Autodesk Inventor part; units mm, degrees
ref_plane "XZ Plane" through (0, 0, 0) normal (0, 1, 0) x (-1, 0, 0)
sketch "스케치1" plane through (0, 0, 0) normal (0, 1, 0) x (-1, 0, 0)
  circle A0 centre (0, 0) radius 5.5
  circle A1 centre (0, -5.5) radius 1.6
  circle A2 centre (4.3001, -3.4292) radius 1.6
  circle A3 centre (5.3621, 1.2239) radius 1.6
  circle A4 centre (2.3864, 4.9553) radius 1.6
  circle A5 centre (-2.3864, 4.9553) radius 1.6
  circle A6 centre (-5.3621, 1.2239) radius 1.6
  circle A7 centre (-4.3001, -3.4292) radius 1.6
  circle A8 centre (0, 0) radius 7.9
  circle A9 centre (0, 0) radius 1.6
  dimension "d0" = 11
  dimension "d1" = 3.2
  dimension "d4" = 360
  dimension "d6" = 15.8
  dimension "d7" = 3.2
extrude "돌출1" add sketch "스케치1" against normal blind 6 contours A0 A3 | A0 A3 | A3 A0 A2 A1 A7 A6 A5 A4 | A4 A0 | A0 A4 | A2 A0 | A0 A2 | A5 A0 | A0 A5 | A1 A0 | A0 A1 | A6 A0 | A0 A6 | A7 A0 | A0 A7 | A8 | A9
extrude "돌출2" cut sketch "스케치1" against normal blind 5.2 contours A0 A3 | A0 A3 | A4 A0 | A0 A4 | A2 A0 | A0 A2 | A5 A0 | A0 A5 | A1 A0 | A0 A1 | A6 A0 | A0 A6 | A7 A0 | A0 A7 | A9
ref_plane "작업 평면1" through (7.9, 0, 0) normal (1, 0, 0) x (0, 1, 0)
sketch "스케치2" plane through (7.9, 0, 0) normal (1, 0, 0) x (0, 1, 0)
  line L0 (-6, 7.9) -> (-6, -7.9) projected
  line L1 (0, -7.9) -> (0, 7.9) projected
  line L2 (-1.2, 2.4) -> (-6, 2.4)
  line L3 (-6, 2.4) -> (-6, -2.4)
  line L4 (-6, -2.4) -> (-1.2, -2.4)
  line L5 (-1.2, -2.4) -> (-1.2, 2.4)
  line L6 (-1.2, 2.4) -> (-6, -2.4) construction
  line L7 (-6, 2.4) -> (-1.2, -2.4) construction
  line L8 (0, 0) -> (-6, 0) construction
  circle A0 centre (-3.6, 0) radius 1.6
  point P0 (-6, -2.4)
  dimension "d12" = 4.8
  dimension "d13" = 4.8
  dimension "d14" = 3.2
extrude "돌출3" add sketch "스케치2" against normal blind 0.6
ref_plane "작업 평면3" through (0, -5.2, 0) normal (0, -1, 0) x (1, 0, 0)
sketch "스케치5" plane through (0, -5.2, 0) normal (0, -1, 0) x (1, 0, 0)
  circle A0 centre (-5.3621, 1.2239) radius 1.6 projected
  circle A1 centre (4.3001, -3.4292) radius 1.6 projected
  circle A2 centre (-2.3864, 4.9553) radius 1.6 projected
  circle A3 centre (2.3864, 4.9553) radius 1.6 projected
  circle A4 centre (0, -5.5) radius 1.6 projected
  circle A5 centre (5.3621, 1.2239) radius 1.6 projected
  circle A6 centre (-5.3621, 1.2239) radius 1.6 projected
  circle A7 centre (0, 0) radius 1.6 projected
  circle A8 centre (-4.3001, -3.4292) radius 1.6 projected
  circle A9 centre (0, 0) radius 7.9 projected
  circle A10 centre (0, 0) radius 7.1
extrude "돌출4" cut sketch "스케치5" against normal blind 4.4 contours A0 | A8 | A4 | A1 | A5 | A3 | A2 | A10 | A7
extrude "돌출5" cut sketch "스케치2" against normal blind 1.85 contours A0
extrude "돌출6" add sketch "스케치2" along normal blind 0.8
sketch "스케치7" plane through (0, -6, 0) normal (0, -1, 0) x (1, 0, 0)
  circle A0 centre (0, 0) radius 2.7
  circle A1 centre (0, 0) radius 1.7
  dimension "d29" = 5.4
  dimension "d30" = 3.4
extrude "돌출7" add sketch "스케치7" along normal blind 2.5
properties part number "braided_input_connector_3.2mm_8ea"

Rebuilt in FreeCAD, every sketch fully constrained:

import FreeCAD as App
import Part
import Sketcher

V = App.Vector


def add_polygon(sketch, points):
    """Adds a closed chain of lines whose ends are joined by coincident constraints."""
    first, n = sketch.GeometryCount, len(points)
    for a, b in zip(points, points[1:] + points[:1]):
        sketch.addGeometry(Part.LineSegment(App.Vector(*a, 0), App.Vector(*b, 0)), False)
    for i in range(n):
        sketch.addConstraint(Sketcher.Constraint("Coincident", first + i, 2, first + (i + 1) % n, 1))

doc = App.newDocument("Part")
body = doc.addObject("PartDesign::Body", "Body")

sketch1 = body.newObject("Sketcher::SketchObject", "Sketch")
sketch1.AttachmentSupport = (doc.getObject("XZ_Plane"), [""])
sketch1.MapMode = "FlatFace"
sketch1.addGeometry(Part.Circle(V(0, 0, 0), V(0, 0, 1), 8), False)
sketch1.addConstraint([
    Sketcher.Constraint("Coincident", 0, 3, -1, 1),
    Sketcher.Constraint("Diameter", 0, 15.8),
])
pad1 = body.newObject("PartDesign::Pad", "Pad")
pad1.Profile = sketch1
pad1.Length = 6

sketch2 = body.newObject("Sketcher::SketchObject", "Sketch001")
sketch2.AttachmentSupport = (doc.getObject("XZ_Plane"), [""])
sketch2.MapMode = "FlatFace"
sketch2.addGeometry([
    Part.Circle(V(-5.4, 1.2, 0), V(0, 0, 1), 1.6),
    Part.Circle(V(-2.4, 5, 0), V(0, 0, 1), 1.6),
    Part.Circle(V(-4.3, -3.4, 0), V(0, 0, 1), 1.6),
    Part.Circle(V(2.4, 5, 0), V(0, 0, 1), 1.6),
    Part.Circle(V(0, -5.5, 0), V(0, 0, 1), 1.6),
    Part.Circle(V(5.4, 1.2, 0), V(0, 0, 1), 1.6),
    Part.Circle(V(4.3, -3.4, 0), V(0, 0, 1), 1.6),
    Part.Circle(V(0, 0, 0), V(0, 0, 1), 1.6),
], False)
sketch2.addConstraint([
    Sketcher.Constraint("Coincident", 7, 3, -1, 1),
    Sketcher.Constraint("Equal", 0, 1),
    Sketcher.Constraint("Equal", 1, 2),
    Sketcher.Constraint("Equal", 2, 3),
    Sketcher.Constraint("Equal", 3, 4),
    Sketcher.Constraint("Equal", 4, 5),
    Sketcher.Constraint("Equal", 5, 6),
    Sketcher.Constraint("Equal", 6, 7),
    Sketcher.Constraint("Symmetric", 1, 3, 3, 3, -2),
    Sketcher.Constraint("Symmetric", 0, 3, 5, 3, -2),
    Sketcher.Constraint("Symmetric", 2, 3, 6, 3, -2),
    Sketcher.Constraint("PointOnObject", 4, 3, -2),
    Sketcher.Constraint("Diameter", 0, 3.2),
    Sketcher.Constraint("DistanceX", 2, 3, -1, 1, 4.3),
    Sketcher.Constraint("DistanceY", 4, 3, -1, 1, 5.5),
    Sketcher.Constraint("DistanceX", 0, 3, -1, 1, 5.362),
    Sketcher.Constraint("DistanceY", -1, 1, 0, 3, 1.224),
    Sketcher.Constraint("DistanceY", 2, 3, 0, 3, 4.653),
    Sketcher.Constraint("DistanceX", 1, 3, -1, 1, 2.3864),
    Sketcher.Constraint("DistanceY", -1, 1, 1, 3, 4.9553),
])
pocket1 = body.newObject("PartDesign::Pocket", "Pocket")
pocket1.Profile = sketch2
pocket1.Length = 5.2
pocket1.Reversed = True

sketch3 = body.newObject("Sketcher::SketchObject", "Sketch002")
sketch3.AttachmentSupport = (doc.getObject("YZ_Plane"), [""])
sketch3.MapMode = "FlatFace"
sketch3.AttachmentOffset = App.Placement(V(0, 0, 7.9), App.Rotation())
add_polygon(sketch3, [(-1.2, 2.4), (-6, 2.4), (-6, -2.4), (-1.2, -2.4)])
sketch3.addGeometry(Part.Circle(V(-3.6, 0, 0), V(0, 0, 1), 1.6), False)
sketch3.addConstraint([
    Sketcher.Constraint("Horizontal", 0),
    Sketcher.Constraint("Vertical", 1),
    Sketcher.Constraint("Horizontal", 2),
    Sketcher.Constraint("Vertical", 3),
    Sketcher.Constraint("PointOnObject", 4, 3, -1),
    Sketcher.Constraint("Equal", 2, 1),
    Sketcher.Constraint("Diameter", 4, 3.2),
    Sketcher.Constraint("DistanceX", 0, 2, 0, 1, 4.8),
    Sketcher.Constraint("DistanceX", 0, 2, -1, 1, 6.0),
    Sketcher.Constraint("DistanceX", 4, 3, -1, 1, 3.6),
    Sketcher.Constraint("DistanceY", -1, 1, 0, 2, 2.4),
])
pad2 = body.newObject("PartDesign::Pad", "Pad001")
pad2.Profile = sketch3
pad2.Length = 0.6
pad2.Reversed = True

sketch4 = body.newObject("Sketcher::SketchObject", "Sketch003")
sketch4.AttachmentSupport = (doc.getObject("XZ_Plane"), [""])
sketch4.MapMode = "FlatFace"
sketch4.AttachmentOffset = App.Placement(V(0, 0, 5.2), App.Rotation())
sketch4.addGeometry(Part.Circle(V(0, 0, 0), V(0, 0, 1), 7), False)
sketch4.addConstraint([
    Sketcher.Constraint("Coincident", 0, 3, -1, 1),
    Sketcher.Constraint("Diameter", 0, 14.2),
])
pocket2 = body.newObject("PartDesign::Pocket", "Pocket001")
pocket2.Profile = sketch4
pocket2.Length = 4.4

sketch5 = body.newObject("Sketcher::SketchObject", "Sketch004")
sketch5.AttachmentSupport = (doc.getObject("YZ_Plane"), [""])
sketch5.MapMode = "FlatFace"
sketch5.AttachmentOffset = App.Placement(V(0, 0, 7.9), App.Rotation())
sketch5.addGeometry(Part.Circle(V(-3.6, 0, 0), V(0, 0, 1), 1.6), False)
sketch5.addConstraint([
    Sketcher.Constraint("PointOnObject", 0, 3, -1),
    Sketcher.Constraint("Diameter", 0, 3.2),
    Sketcher.Constraint("DistanceX", 0, 3, -1, 1, 3.6),
])
pocket3 = body.newObject("PartDesign::Pocket", "Pocket002")
pocket3.Profile = sketch5
pocket3.Length = 1.85

sketch6 = body.newObject("Sketcher::SketchObject", "Sketch005")
sketch6.AttachmentSupport = (doc.getObject("YZ_Plane"), [""])
sketch6.MapMode = "FlatFace"
sketch6.AttachmentOffset = App.Placement(V(0, 0, 7.9), App.Rotation())
add_polygon(sketch6, [(-1.2, 2.4), (-6, 2.4), (-6, -2.4), (-1.2, -2.4)])
sketch6.addGeometry(Part.Circle(V(-3.6, 0, 0), V(0, 0, 1), 1.6), False)
sketch6.addConstraint([
    Sketcher.Constraint("Horizontal", 0),
    Sketcher.Constraint("Vertical", 1),
    Sketcher.Constraint("Horizontal", 2),
    Sketcher.Constraint("Vertical", 3),
    Sketcher.Constraint("PointOnObject", 4, 3, -1),
    Sketcher.Constraint("Equal", 2, 1),
    Sketcher.Constraint("Diameter", 4, 3.2),
    Sketcher.Constraint("DistanceX", 0, 2, 0, 1, 4.8),
    Sketcher.Constraint("DistanceX", 0, 2, -1, 1, 6.0),
    Sketcher.Constraint("DistanceX", 4, 3, -1, 1, 3.6),
    Sketcher.Constraint("DistanceY", -1, 1, 0, 2, 2.4),
])
pad3 = body.newObject("PartDesign::Pad", "Pad002")
pad3.Profile = sketch6
pad3.Length = 0.8

sketch7 = body.newObject("Sketcher::SketchObject", "Sketch006")
sketch7.AttachmentSupport = (doc.getObject("XZ_Plane"), [""])
sketch7.MapMode = "FlatFace"
sketch7.AttachmentOffset = App.Placement(V(0, 0, 6), App.Rotation())
sketch7.addGeometry([
    Part.Circle(V(0, 0, 0), V(0, 0, 1), 2.7),
    Part.Circle(V(0, 0, 0), V(0, 0, 1), 1.7),
], False)
sketch7.addConstraint([
    Sketcher.Constraint("Coincident", 0, 3, -1, 1),
    Sketcher.Constraint("Coincident", 1, 3, -1, 1),
    Sketcher.Constraint("Diameter", 0, 5.4),
    Sketcher.Constraint("Diameter", 1, 3.4),
])
pad4 = body.newObject("PartDesign::Pad", "Pad003")
pad4.Profile = sketch7
pad4.Length = 2.5

doc.recompute()
